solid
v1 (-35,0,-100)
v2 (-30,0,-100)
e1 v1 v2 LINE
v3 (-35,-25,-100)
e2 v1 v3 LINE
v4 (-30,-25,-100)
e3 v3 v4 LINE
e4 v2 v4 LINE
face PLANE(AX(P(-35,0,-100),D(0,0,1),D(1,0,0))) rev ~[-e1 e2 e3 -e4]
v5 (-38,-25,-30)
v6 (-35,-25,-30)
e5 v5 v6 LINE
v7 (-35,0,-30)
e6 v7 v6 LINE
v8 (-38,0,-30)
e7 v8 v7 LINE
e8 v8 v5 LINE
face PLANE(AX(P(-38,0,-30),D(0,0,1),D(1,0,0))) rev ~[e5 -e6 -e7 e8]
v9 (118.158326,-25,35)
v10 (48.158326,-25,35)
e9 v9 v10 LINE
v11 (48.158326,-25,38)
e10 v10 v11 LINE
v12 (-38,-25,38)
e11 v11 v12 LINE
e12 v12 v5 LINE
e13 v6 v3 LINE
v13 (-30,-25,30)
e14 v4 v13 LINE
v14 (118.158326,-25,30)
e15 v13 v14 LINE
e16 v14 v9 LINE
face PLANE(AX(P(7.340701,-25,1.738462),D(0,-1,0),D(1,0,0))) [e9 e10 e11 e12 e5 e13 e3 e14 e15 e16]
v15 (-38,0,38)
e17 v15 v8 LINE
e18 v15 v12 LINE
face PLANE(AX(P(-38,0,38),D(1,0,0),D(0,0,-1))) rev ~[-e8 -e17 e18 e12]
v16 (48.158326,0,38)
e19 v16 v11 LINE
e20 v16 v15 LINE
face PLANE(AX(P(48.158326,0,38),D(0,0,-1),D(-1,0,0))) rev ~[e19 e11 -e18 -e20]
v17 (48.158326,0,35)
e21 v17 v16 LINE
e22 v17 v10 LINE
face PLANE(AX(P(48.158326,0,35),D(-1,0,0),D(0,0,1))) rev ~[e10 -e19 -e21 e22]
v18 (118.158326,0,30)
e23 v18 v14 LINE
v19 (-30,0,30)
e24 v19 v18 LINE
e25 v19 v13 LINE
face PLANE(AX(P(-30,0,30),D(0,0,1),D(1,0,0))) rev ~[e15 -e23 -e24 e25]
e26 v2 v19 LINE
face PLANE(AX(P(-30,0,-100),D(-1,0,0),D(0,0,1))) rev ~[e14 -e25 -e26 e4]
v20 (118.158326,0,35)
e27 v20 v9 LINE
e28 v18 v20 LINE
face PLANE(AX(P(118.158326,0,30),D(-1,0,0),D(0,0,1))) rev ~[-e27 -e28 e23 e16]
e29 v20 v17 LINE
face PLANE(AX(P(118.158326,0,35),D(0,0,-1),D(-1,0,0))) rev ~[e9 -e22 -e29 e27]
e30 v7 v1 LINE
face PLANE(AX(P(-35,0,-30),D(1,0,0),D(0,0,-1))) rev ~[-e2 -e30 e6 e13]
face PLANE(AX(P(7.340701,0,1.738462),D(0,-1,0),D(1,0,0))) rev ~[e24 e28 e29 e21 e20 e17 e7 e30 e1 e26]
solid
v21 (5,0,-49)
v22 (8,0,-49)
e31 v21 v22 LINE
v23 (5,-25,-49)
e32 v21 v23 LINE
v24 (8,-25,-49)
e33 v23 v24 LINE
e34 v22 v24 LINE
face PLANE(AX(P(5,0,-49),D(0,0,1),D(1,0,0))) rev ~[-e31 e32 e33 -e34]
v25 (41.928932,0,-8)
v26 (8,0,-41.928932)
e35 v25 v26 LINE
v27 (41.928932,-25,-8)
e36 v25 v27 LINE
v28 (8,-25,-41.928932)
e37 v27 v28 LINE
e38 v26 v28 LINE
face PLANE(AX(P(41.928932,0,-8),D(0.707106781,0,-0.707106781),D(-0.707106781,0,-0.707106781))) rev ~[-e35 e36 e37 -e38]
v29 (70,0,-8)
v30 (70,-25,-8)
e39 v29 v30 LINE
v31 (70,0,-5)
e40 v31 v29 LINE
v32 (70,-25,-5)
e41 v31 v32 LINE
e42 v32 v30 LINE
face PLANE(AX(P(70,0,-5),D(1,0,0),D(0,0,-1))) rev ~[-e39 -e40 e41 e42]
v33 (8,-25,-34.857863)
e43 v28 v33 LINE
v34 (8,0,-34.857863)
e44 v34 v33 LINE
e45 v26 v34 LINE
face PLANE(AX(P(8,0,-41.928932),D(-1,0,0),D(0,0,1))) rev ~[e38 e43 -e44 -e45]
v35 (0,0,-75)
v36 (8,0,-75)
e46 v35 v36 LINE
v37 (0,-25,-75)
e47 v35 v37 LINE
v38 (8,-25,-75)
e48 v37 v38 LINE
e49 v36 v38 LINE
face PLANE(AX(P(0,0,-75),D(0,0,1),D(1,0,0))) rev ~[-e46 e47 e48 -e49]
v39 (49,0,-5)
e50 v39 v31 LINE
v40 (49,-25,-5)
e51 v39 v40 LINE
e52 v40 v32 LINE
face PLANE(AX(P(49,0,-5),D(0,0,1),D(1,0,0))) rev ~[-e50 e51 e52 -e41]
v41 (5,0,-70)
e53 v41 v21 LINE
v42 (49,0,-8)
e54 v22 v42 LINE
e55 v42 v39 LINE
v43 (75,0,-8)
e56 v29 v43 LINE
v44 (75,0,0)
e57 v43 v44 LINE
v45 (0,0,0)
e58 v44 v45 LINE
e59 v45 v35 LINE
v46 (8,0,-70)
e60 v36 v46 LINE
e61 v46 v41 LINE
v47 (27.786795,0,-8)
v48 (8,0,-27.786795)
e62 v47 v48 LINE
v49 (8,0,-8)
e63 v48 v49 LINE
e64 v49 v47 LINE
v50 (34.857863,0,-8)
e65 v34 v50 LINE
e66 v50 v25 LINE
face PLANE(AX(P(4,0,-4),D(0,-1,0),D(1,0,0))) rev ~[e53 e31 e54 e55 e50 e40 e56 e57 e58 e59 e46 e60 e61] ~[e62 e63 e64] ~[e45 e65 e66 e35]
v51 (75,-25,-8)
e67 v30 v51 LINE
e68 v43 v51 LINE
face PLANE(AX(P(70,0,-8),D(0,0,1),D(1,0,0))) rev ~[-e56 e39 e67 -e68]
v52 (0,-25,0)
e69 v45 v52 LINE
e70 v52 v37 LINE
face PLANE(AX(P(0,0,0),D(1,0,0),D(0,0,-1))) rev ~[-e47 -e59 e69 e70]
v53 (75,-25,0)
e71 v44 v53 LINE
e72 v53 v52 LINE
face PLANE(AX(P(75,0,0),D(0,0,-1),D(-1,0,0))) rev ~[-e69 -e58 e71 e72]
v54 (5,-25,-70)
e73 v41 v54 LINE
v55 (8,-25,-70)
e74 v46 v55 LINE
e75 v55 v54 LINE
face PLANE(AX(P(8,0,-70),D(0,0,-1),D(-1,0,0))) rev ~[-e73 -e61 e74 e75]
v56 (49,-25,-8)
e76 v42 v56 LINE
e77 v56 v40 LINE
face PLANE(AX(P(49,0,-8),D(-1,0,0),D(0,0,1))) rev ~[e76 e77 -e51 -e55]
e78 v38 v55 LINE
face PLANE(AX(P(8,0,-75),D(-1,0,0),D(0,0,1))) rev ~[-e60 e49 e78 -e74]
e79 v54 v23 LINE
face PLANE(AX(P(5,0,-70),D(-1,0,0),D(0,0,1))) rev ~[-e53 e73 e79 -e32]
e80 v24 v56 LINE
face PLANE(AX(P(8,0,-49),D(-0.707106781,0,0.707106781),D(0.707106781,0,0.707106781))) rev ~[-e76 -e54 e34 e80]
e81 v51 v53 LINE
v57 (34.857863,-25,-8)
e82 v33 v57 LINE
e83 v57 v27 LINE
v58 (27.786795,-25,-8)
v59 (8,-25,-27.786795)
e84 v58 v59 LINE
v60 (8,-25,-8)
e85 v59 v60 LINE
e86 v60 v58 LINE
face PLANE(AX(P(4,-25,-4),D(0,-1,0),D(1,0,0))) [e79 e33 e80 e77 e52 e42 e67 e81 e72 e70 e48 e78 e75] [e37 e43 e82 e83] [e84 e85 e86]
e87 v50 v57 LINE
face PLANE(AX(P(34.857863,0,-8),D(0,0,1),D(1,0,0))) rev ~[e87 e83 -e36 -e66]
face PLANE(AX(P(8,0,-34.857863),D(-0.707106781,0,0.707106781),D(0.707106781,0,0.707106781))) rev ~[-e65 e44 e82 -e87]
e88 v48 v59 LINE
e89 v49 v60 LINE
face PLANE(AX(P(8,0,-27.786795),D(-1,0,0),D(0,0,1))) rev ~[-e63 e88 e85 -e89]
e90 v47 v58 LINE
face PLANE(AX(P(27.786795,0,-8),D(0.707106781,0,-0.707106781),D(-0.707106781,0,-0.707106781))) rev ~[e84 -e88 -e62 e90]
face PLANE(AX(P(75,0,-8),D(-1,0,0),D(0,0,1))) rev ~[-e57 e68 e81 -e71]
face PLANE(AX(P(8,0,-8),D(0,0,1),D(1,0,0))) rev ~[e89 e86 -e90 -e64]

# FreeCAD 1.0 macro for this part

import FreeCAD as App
import Part
import Sketcher
Q = App.Units.Quantity


def add_polygon(sketch, points):
    """Adds a closed chain of lines whose ends are joined by coincident constraints."""
    first, n = sketch.GeometryCount, len(points)
    for a, b in zip(points, points[1:] + points[:1]):
        sketch.addGeometry(Part.LineSegment(App.Vector(*a, 0), App.Vector(*b, 0)), False)
    for i in range(n):
        sketch.addConstraint(Sketcher.Constraint("Coincident", first + i, 2, first + (i + 1) % n, 1))

doc = App.newDocument("Part")
params = doc.addObject("Spreadsheet::Sheet", "Params")
for row, (alias, value) in enumerate([
    ("sketch1_width", "8 mm"),
    ("sketch1_width2", "3 mm"),
    ("sketch1_width3", "21 mm"),
    ("sketch1_width4", "5 mm"),
    ("sketch1_width5", "75 mm"),
    ("pad1_length", "25 mm"),
    ("sketch2_width", "70 mm"),
    ("sketch2_width2", "3 mm"),
    ("sketch2_width3", "5 mm"),
    ("sketch2_height", "130 mm"),
    ("pad2_length", "25 mm"),
], start=1):
    params.set(f"A{row}", alias)
    params.set(f"B{row}", "=" + value)
    params.setAlias(f"B{row}", alias)

body = doc.addObject("PartDesign::Body", "Body")

# Sketch on XZ plane
sketch1 = doc.addObject("Sketcher::SketchObject", "Sketch")
body.addObject(sketch1)
sketch1.AttachmentSupport = (doc.XZ_Plane, [""])
sketch1.MapMode = "FlatFace"
add_polygon(sketch1, [(0, 0), (0, -75), (8, -75), (8, -70), (5, -70), (5, -49), (8, -49), (49, -8), (49, -5), (70, -5), (70, -8), (75, -8), (75, 0)])  # lines 0-12
add_polygon(sketch1, [(8, -41.928932), (8, -34.857863), (34.857863, -8), (41.928932, -8)])  # lines 13-16
add_polygon(sketch1, [(8, -27.786795), (8, -8), (27.786795, -8)])  # lines 17-19
sketch1.addConstraint([
    Sketcher.Constraint("Vertical", 0),
    Sketcher.Constraint("Horizontal", 1),
    Sketcher.Constraint("Vertical", 2),
    Sketcher.Constraint("Horizontal", 3),
    Sketcher.Constraint("Vertical", 4),
    Sketcher.Constraint("Horizontal", 5),
    Sketcher.Constraint("Vertical", 7),
    Sketcher.Constraint("Horizontal", 8),
    Sketcher.Constraint("Vertical", 9),
    Sketcher.Constraint("Horizontal", 10),
    Sketcher.Constraint("Vertical", 11),
    Sketcher.Constraint("Horizontal", 12),
    Sketcher.Constraint("Vertical", 13),
    Sketcher.Constraint("Horizontal", 15),
    Sketcher.Constraint("Vertical", 17),
    Sketcher.Constraint("Horizontal", 18),
    Sketcher.Constraint("Coincident", 12, 2, -1, 1),
    Sketcher.Constraint("Parallel", 6, 14),
    Sketcher.Constraint("Parallel", 14, 16),
    Sketcher.Constraint("Parallel", 16, 19),
    Sketcher.Constraint("Horizontal", 6, 2, 9, 2),
    Sketcher.Constraint("Horizontal", 10, 2, 14, 2),
    Sketcher.Constraint("Horizontal", 15, 2, 17, 2),
    Sketcher.Constraint("Vertical", 2, 2, 5, 2),
    Sketcher.Constraint("Vertical", 5, 2, 13, 2),
    Sketcher.Constraint("Vertical", 16, 2, 17, 2),
    Sketcher.Constraint("Equal", 12, 0),
    Sketcher.Constraint("Equal", 10, 2),
    Sketcher.Constraint("Equal", 8, 4),
    Sketcher.Constraint("Equal", 5, 7),
    Sketcher.Constraint("Equal", 1, 11),
    Sketcher.Constraint("DistanceX", 1, 1, 1, 2, Q("8 mm")),
    Sketcher.Constraint("DistanceX", 3, 2, 3, 1, Q("3 mm")),
    Sketcher.Constraint("DistanceX", 8, 1, 8, 2, Q("21 mm")),
    Sketcher.Constraint("DistanceX", 10, 1, 10, 2, Q("5 mm")),
    Sketcher.Constraint("DistanceX", 12, 2, 12, 1, Q("75 mm")),
    Sketcher.Constraint("DistanceX", 15, 1, 15, 2, Q("7.071069 mm")),
    Sketcher.Constraint("DistanceX", 18, 1, 18, 2, Q("19.786795 mm")),
    Sketcher.Constraint("Distance", 14, Q("37.982754 mm")),
])
sketch1.setExpression("Constraints[51]", "Params.sketch1_width")
sketch1.setExpression("Constraints[52]", "Params.sketch1_width2")
sketch1.setExpression("Constraints[53]", "Params.sketch1_width3")
sketch1.setExpression("Constraints[54]", "Params.sketch1_width4")
sketch1.setExpression("Constraints[55]", "Params.sketch1_width5")
pad1 = doc.addObject("PartDesign::Pad", "Pad")
body.addObject(pad1)
pad1.Profile = sketch1
pad1.setExpression("Length", "Params.pad1_length")
body2 = doc.addObject("PartDesign::Body", "Body001")

# Sketch on XZ plane
sketch2 = doc.addObject("Sketcher::SketchObject", "Sketch001")
body2.addObject(sketch2)
sketch2.AttachmentSupport = (doc.getObject("XZ_Plane001"), [""])
sketch2.MapMode = "FlatFace"
add_polygon(sketch2, [(-30, -100), (-30, 30), (118.158326, 30), (118.158326, 35), (48.158326, 35), (48.158326, 38), (-38, 38), (-38, -30), (-35, -30), (-35, -100)])  # lines 0-9
sketch2.addConstraint([
    Sketcher.Constraint("Vertical", 0),
    Sketcher.Constraint("Horizontal", 1),
    Sketcher.Constraint("Vertical", 2),
    Sketcher.Constraint("Horizontal", 3),
    Sketcher.Constraint("Vertical", 4),
    Sketcher.Constraint("Horizontal", 5),
    Sketcher.Constraint("Vertical", 6),
    Sketcher.Constraint("Horizontal", 7),
    Sketcher.Constraint("Vertical", 8),
    Sketcher.Constraint("Horizontal", 9),
    Sketcher.Constraint("Equal", 9, 2),
    Sketcher.Constraint("Equal", 7, 4),
    Sketcher.Constraint("Equal", 3, 8),
    Sketcher.Constraint("DistanceX", 3, 2, 3, 1, Q("70 mm")),
    Sketcher.Constraint("DistanceX", 7, 1, 7, 2, Q("3 mm")),
    Sketcher.Constraint("DistanceX", 9, 1, 9, 2, Q("5 mm")),
    Sketcher.Constraint("DistanceY", 0, 1, 0, 2, Q("130 mm")),
    Sketcher.Constraint("DistanceX", 0, 2, -1, 1, Q("30 mm")),
    Sketcher.Constraint("DistanceY", -1, 1, 0, 2, Q("30 mm")),
    Sketcher.Constraint("DistanceX", 1, 1, 1, 2, Q("148.158326 mm")),
])
sketch2.setExpression("Constraints[23]", "Params.sketch2_width")
sketch2.setExpression("Constraints[24]", "Params.sketch2_width2")
sketch2.setExpression("Constraints[25]", "Params.sketch2_width3")
sketch2.setExpression("Constraints[26]", "Params.sketch2_height")
pad2 = doc.addObject("PartDesign::Pad", "Pad001")
body2.addObject(pad2)
pad2.Profile = sketch2
pad2.setExpression("Length", "Params.pad2_length")

doc.recompute()
